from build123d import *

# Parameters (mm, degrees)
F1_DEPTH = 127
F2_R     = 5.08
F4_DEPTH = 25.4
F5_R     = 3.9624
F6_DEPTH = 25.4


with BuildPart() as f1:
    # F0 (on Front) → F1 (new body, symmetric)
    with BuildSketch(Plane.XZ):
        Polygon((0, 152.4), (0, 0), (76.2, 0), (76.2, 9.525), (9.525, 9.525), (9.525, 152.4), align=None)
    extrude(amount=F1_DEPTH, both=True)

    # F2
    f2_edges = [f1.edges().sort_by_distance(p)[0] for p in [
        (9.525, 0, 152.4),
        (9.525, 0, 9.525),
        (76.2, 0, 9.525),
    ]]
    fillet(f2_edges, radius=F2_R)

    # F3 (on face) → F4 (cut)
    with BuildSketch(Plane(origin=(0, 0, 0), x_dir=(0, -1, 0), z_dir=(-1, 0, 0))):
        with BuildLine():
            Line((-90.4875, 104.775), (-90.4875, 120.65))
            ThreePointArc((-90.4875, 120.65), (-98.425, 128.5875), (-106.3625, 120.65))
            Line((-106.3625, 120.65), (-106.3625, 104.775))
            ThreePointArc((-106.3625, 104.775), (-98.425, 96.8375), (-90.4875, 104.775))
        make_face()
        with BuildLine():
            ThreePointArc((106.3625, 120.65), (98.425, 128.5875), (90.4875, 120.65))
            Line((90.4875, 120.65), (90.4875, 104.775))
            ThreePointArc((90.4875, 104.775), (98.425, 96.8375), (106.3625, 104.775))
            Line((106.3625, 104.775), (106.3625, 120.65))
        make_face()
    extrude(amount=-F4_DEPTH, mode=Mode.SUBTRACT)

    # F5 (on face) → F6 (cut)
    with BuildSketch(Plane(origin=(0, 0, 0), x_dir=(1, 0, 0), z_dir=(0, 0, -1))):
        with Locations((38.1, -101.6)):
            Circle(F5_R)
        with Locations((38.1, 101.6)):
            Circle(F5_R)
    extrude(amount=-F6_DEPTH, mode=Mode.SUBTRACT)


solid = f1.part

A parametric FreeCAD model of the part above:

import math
import FreeCAD as App
import Part
import Sketcher
from FreeCAD import Vector
Q = App.Units.Quantity


def edges_at(feature, points):
    """Names of the edges that pass closest to the given points."""
    edges = feature.Shape.Edges
    near = lambda p: min(range(len(edges)), key=lambda i: edges[i].distToShape(Part.Vertex(*p))[0])
    return sorted({f"Edge{near(p) + 1}" for p in points})

doc = App.newDocument("Part")
body = doc.addObject("PartDesign::Body", "Body")

# Sketch on XZ plane
sketch1 = body.newObject("Sketcher::SketchObject", "Sketch")
sketch1.AttachmentSupport = (doc.getObject("XZ_Plane"), [""])
sketch1.MapMode = "FlatFace"
sketch1.addGeometry(Part.LineSegment(Vector(0, 152, 0), Vector(0, 0, 0)), False)
sketch1.addGeometry(Part.LineSegment(Vector(0, 0, 0), Vector(76, 0, 0)), False)
sketch1.addGeometry(Part.LineSegment(Vector(76, 0, 0), Vector(76, 10, 0)), False)
sketch1.addGeometry(Part.LineSegment(Vector(76, 10, 0), Vector(10, 10, 0)), False)
sketch1.addGeometry(Part.LineSegment(Vector(10, 10, 0), Vector(10, 152, 0)), False)
sketch1.addGeometry(Part.LineSegment(Vector(10, 152, 0), Vector(0, 152, 0)), False)
sketch1.addConstraint(Sketcher.Constraint("Coincident", 0, 2, 1, 1))
sketch1.addConstraint(Sketcher.Constraint("Coincident", 1, 2, 2, 1))
sketch1.addConstraint(Sketcher.Constraint("Coincident", 2, 2, 3, 1))
sketch1.addConstraint(Sketcher.Constraint("Coincident", 3, 2, 4, 1))
sketch1.addConstraint(Sketcher.Constraint("Coincident", 4, 2, 5, 1))
sketch1.addConstraint(Sketcher.Constraint("Coincident", 5, 2, 0, 1))
sketch1.addConstraint(Sketcher.Constraint("Vertical", 0))
sketch1.addConstraint(Sketcher.Constraint("Horizontal", 1))
sketch1.addConstraint(Sketcher.Constraint("Vertical", 2))
sketch1.addConstraint(Sketcher.Constraint("Horizontal", 3))
sketch1.addConstraint(Sketcher.Constraint("Vertical", 4))
sketch1.addConstraint(Sketcher.Constraint("Horizontal", 5))
sketch1.addConstraint(Sketcher.Constraint("Coincident", 0, 2, -1, 1))
sketch1.addConstraint(Sketcher.Constraint("Equal", 5, 2))
sketch1.addConstraint(Sketcher.Constraint("DistanceX", 1, 1, 1, 2, Q("3 in")))
sketch1.addConstraint(Sketcher.Constraint("DistanceY", 0, 2, 0, 1, Q("6 in")))
sketch1.addConstraint(Sketcher.Constraint("DistanceX", 3, 2, 3, 1, Q("2.625 in")))
pad1 = body.newObject("PartDesign::Pad", "Pad")
pad1.Profile = sketch1
pad1.Length = Q("10 in")
pad1.Midplane = True
doc.recompute()

fillet = body.newObject("PartDesign::Fillet", "Fillet")
fillet.Base = (pad1, edges_at(pad1, [(9.525, 0, 152.4), (9.525, 0, 9.525), (76.2, 0, 9.525)]))
fillet.Radius = Q("0.2 in")

# Sketch on YZ plane
sketch2 = body.newObject("Sketcher::SketchObject", "Sketch001")
sketch2.AttachmentSupport = (doc.getObject("YZ_Plane"), [""])
sketch2.MapMode = "FlatFace"
sketch2.addGeometry(Part.LineSegment(Vector(90, 105, 0), Vector(90, 121, 0)), False)
sketch2.addGeometry(Part.ArcOfCircle(Part.Circle(Vector(98, 121, 0), Vector(0, 0, 1), 8), math.radians(0), math.radians(180)), False)
sketch2.addGeometry(Part.LineSegment(Vector(106, 121, 0), Vector(106, 105, 0)), False)
sketch2.addGeometry(Part.ArcOfCircle(Part.Circle(Vector(98, 105, 0), Vector(0, 0, 1), 8), math.radians(180), math.radians(360)), False)
sketch2.addGeometry(Part.ArcOfCircle(Part.Circle(Vector(-98, 121, 0), Vector(0, 0, 1), 8), math.radians(0), math.radians(180)), False)
sketch2.addGeometry(Part.LineSegment(Vector(-90, 121, 0), Vector(-90, 105, 0)), False)
sketch2.addGeometry(Part.ArcOfCircle(Part.Circle(Vector(-98, 105, 0), Vector(0, 0, 1), 8), math.radians(180), math.radians(360)), False)
sketch2.addGeometry(Part.LineSegment(Vector(-106, 105, 0), Vector(-106, 121, 0)), False)
sketch2.addConstraint(Sketcher.Constraint("Tangent", 0, 2, 1, 2))
sketch2.addConstraint(Sketcher.Constraint("Tangent", 1, 1, 2, 1))
sketch2.addConstraint(Sketcher.Constraint("Tangent", 2, 2, 3, 2))
sketch2.addConstraint(Sketcher.Constraint("Tangent", 3, 1, 0, 1))
sketch2.addConstraint(Sketcher.Constraint("Tangent", 4, 1, 5, 1))
sketch2.addConstraint(Sketcher.Constraint("Tangent", 5, 2, 6, 2))
sketch2.addConstraint(Sketcher.Constraint("Tangent", 6, 1, 7, 1))
sketch2.addConstraint(Sketcher.Constraint("Tangent", 7, 2, 4, 2))
sketch2.addConstraint(Sketcher.Constraint("Vertical", 0))
sketch2.addConstraint(Sketcher.Constraint("Vertical", 2))
sketch2.addConstraint(Sketcher.Constraint("Vertical", 5))
sketch2.addConstraint(Sketcher.Constraint("Vertical", 7))
sketch2.addConstraint(Sketcher.Constraint("Equal", 3, 4))
sketch2.addConstraint(Sketcher.Constraint("Symmetric", 1, 3, 4, 3, -2))
sketch2.addConstraint(Sketcher.Constraint("Horizontal", 3, 3, 6, 3))
sketch2.addConstraint(Sketcher.Constraint("Radius", 1, Q("0.3125 in")))
sketch2.addConstraint(Sketcher.Constraint("DistanceY", 0, 1, 0, 2, Q("0.625 in")))
sketch2.addConstraint(Sketcher.Constraint("DistanceY", -1, 1, 1, 3, Q("4.75 in")))
sketch2.addConstraint(Sketcher.Constraint("DistanceX", 4, 3, 1, 3, Q("7.75 in")))
pocket1 = body.newObject("PartDesign::Pocket", "Pocket")
pocket1.Profile = sketch2
pocket1.Length = Q("1 in")
pocket1.Reversed = True

# Sketch on XY plane
sketch3 = body.newObject("Sketcher::SketchObject", "Sketch002")
sketch3.AttachmentSupport = (doc.getObject("XY_Plane"), [""])
sketch3.MapMode = "FlatFace"
sketch3.addGeometry(Part.Circle(Vector(38.1, 101.6, 0), Vector(0, 0, 1), 4), False)
sketch3.addGeometry(Part.Circle(Vector(38.1, -101.6, 0), Vector(0, 0, 1), 4), False)
sketch3.addConstraint(Sketcher.Constraint("Equal", 0, 1))
sketch3.addConstraint(Sketcher.Constraint("Symmetric", 0, 3, 1, 3, -1))
sketch3.addConstraint(Sketcher.Constraint("Diameter", 0, Q("0.312 in")))
sketch3.addConstraint(Sketcher.Constraint("DistanceY", -1, 1, 0, 3, Q("4 in")))
sketch3.addConstraint(Sketcher.Constraint("DistanceX", -1, 1, 0, 3, Q("1.5 in")))
pocket2 = body.newObject("PartDesign::Pocket", "Pocket001")
pocket2.Profile = sketch3
pocket2.Length = Q("1 in")
pocket2.Reversed = True

doc.recompute()
